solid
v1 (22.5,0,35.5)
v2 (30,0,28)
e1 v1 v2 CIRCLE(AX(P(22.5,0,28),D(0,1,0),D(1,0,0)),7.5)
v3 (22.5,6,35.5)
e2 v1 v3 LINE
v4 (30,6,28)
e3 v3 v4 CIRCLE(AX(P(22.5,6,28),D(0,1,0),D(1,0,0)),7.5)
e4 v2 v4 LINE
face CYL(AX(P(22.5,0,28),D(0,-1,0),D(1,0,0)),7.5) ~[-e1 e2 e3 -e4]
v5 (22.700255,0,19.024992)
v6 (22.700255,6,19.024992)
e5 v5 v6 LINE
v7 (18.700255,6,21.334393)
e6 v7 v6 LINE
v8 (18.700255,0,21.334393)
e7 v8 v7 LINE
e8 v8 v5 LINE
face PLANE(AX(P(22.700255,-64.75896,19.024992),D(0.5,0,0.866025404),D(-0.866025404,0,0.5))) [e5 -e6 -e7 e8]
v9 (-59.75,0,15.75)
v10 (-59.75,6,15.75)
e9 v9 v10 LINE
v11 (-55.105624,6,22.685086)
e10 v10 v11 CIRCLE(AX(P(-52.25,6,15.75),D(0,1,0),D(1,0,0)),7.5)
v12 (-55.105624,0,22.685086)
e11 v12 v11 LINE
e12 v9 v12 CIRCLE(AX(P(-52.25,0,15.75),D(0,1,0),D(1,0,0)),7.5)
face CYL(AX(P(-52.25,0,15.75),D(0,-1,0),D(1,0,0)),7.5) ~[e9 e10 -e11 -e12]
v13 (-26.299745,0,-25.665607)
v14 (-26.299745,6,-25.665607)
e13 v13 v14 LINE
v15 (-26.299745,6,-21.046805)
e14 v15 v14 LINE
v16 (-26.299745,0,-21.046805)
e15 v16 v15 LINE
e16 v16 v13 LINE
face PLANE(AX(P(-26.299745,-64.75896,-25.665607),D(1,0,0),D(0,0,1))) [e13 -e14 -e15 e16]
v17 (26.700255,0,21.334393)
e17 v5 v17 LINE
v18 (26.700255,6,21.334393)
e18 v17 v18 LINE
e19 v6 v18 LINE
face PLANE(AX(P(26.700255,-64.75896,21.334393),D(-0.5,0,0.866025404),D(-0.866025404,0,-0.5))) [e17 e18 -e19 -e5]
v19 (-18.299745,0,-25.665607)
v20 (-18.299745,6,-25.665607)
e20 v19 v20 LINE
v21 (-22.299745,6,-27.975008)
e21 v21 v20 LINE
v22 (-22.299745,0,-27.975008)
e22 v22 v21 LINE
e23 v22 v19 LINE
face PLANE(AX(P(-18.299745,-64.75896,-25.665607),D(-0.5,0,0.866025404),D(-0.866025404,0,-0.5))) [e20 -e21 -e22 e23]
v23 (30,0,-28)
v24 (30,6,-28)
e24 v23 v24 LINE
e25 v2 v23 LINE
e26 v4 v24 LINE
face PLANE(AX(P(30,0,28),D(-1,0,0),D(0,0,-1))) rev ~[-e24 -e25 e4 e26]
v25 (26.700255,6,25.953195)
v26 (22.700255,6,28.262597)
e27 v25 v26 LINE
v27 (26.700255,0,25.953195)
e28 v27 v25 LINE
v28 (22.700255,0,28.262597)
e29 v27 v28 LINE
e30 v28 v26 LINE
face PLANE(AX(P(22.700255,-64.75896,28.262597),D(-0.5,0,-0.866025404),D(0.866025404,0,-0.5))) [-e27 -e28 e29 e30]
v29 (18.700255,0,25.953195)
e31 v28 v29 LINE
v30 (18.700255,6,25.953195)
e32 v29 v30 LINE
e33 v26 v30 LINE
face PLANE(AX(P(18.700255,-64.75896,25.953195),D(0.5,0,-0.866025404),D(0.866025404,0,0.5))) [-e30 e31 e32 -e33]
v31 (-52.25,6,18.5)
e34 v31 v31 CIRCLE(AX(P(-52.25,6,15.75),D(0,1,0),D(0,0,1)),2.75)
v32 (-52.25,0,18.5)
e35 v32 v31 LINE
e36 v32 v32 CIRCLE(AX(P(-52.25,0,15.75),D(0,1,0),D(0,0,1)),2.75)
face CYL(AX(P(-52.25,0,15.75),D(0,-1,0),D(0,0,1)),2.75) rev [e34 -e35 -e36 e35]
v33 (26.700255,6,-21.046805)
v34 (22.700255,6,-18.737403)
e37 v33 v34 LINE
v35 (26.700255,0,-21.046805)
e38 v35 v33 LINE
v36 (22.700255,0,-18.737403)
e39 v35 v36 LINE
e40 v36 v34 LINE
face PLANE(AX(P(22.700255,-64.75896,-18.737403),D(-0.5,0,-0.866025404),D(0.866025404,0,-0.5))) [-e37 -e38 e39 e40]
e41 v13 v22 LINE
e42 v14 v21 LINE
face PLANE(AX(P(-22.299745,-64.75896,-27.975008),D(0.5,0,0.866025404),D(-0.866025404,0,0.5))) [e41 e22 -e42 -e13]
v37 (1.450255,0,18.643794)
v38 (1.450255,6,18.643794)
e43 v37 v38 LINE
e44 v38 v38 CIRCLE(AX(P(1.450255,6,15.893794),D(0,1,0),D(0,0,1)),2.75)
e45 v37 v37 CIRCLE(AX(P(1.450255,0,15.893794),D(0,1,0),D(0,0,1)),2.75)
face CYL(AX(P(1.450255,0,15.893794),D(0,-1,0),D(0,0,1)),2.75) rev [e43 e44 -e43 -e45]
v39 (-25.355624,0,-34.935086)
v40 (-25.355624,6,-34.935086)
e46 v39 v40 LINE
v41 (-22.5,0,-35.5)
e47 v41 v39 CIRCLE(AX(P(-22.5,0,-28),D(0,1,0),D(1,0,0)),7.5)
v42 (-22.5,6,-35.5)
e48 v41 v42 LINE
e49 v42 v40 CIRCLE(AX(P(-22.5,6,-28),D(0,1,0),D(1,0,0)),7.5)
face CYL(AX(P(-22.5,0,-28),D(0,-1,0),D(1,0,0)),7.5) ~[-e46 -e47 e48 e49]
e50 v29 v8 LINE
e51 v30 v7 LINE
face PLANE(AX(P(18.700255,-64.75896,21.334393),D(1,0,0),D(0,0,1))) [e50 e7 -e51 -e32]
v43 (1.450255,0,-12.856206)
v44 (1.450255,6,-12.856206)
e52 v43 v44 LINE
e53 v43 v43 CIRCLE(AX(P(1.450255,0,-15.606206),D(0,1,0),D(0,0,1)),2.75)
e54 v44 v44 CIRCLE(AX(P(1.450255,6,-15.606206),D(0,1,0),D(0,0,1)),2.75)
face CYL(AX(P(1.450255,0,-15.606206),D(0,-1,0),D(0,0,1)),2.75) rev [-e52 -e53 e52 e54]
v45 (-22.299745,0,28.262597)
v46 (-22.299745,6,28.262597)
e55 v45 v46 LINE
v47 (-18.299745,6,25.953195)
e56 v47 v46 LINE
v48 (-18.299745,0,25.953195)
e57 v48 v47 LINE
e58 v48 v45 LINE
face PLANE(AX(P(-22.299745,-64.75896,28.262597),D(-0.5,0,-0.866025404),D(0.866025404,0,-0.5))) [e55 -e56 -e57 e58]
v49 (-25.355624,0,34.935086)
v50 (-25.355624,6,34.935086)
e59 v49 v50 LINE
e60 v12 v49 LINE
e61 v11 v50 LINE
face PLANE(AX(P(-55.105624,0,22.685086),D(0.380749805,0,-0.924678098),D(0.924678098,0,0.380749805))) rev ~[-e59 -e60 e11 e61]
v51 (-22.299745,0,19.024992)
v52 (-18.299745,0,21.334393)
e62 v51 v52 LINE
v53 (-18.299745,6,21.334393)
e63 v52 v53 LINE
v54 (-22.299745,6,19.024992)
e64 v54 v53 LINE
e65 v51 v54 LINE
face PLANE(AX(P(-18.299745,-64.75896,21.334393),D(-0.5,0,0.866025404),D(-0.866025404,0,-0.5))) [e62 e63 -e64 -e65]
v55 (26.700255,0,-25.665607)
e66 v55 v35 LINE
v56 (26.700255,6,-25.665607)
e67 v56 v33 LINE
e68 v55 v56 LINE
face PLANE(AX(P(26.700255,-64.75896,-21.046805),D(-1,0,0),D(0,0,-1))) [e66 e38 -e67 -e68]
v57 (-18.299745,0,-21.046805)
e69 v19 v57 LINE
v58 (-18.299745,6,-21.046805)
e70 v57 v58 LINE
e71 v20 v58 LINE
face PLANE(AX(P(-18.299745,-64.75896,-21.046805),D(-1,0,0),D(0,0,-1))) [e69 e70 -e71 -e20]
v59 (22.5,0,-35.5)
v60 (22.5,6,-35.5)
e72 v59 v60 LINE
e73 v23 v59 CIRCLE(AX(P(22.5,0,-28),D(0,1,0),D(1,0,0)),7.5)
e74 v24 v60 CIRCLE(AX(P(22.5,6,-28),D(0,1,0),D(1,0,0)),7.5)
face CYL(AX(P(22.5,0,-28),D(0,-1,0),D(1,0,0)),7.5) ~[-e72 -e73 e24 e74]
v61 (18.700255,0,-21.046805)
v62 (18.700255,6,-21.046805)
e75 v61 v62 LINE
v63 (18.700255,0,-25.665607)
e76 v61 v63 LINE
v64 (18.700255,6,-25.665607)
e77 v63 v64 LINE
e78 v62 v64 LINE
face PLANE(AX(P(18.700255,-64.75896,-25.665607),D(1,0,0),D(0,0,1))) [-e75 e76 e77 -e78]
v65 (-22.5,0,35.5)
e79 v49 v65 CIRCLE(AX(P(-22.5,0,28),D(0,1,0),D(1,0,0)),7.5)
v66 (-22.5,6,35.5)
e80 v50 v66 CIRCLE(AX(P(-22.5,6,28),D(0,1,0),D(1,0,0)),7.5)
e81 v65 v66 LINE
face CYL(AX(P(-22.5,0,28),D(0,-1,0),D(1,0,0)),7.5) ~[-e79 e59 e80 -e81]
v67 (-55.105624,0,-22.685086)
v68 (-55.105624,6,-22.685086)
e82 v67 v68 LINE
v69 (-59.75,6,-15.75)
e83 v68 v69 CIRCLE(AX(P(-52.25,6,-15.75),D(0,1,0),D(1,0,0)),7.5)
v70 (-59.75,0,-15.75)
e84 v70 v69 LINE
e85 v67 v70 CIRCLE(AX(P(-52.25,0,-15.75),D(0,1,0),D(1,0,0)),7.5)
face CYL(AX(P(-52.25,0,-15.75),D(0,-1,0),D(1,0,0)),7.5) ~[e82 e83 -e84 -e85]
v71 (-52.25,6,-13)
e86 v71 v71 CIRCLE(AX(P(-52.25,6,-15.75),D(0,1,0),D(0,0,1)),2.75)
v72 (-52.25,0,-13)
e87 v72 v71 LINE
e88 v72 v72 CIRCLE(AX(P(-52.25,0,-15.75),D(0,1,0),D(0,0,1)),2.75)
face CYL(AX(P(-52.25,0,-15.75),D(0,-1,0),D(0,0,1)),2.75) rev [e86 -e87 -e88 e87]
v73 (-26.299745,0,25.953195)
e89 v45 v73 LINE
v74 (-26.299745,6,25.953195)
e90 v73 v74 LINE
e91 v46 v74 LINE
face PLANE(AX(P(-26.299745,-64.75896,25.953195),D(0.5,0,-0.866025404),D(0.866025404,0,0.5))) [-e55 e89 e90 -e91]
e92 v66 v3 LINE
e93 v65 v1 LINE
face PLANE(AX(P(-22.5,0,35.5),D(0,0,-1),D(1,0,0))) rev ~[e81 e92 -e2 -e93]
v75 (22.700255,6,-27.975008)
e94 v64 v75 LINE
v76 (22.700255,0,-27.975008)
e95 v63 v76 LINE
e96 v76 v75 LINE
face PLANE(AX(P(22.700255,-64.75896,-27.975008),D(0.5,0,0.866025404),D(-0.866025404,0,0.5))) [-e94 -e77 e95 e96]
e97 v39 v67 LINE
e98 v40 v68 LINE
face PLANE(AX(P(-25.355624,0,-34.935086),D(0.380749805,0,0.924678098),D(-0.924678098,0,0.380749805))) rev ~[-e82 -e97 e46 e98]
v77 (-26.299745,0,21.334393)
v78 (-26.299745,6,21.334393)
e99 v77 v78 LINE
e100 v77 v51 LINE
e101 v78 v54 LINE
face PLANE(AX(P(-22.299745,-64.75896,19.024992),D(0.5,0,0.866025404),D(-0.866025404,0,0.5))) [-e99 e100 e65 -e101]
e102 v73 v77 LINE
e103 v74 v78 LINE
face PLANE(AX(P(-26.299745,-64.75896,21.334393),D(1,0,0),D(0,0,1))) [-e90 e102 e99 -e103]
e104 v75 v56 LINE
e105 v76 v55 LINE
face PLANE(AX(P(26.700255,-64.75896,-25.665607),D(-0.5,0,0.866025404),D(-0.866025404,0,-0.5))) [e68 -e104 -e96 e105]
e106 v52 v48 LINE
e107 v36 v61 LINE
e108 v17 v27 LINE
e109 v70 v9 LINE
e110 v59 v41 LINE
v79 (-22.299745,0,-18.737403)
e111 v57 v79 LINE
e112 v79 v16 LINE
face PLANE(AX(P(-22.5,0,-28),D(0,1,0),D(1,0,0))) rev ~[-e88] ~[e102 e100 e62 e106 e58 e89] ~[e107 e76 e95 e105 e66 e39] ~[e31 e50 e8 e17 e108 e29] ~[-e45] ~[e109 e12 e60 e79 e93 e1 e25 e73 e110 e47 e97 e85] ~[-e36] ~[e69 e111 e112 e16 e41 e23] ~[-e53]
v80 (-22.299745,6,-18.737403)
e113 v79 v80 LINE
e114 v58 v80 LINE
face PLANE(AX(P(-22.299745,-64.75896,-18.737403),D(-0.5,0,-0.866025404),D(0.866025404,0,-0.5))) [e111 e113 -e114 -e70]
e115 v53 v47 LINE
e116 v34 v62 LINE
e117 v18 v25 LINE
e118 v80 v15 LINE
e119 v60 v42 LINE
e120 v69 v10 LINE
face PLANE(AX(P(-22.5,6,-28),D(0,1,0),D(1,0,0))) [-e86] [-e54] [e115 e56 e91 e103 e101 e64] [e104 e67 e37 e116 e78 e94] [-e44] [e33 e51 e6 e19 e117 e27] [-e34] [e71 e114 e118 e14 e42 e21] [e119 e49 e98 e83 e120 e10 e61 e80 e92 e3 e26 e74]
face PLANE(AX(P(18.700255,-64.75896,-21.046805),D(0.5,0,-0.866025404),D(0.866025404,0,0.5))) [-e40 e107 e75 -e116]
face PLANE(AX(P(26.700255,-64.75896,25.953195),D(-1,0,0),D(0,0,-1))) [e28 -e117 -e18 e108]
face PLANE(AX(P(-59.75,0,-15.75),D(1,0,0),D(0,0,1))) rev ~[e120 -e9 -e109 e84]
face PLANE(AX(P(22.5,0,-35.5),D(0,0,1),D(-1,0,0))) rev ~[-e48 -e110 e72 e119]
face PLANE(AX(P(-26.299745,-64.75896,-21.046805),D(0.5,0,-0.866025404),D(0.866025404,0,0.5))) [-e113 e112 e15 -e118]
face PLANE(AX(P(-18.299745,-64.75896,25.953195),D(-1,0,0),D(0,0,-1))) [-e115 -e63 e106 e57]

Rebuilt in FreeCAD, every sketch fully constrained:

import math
import FreeCAD as App
import Part
import Sketcher
from FreeCAD import Vector
Q = App.Units.Quantity

doc = App.newDocument("Part")
body = doc.addObject("PartDesign::Body", "Body")

# Sketch on XZ plane
sketch1 = doc.addObject("Sketcher::SketchObject", "Sketch")
body.addObject(sketch1)
sketch1.AttachmentSupport = (doc.XZ_Plane, [""])
sketch1.MapMode = "FlatFace"
sketch1.addGeometry([
    Part.ArcOfCircle(Part.Circle(Vector(-52.2, -15.8, 0), Vector(0, 0, 1), 7.5), math.radians(180), math.radians(248)),  # 0
    Part.LineSegment(Vector(-59.8, -15.8, 0), Vector(-59.8, 15.8, 0)),  # 1
    Part.ArcOfCircle(Part.Circle(Vector(-52.2, 15.8, 0), Vector(0, 0, 1), 7.5), math.radians(112), math.radians(180)),  # 2
    Part.LineSegment(Vector(-55.1, 22.7, 0), Vector(-25.4, 34.9, 0)),  # 3
    Part.ArcOfCircle(Part.Circle(Vector(-22.5, 28, 0), Vector(0, 0, 1), 7.5), math.radians(90), math.radians(112)),  # 4
    Part.LineSegment(Vector(-22.5, 35.5, 0), Vector(22.5, 35.5, 0)),  # 5
    Part.ArcOfCircle(Part.Circle(Vector(22.5, 28, 0), Vector(0, 0, 1), 7.5), math.radians(0), math.radians(90)),  # 6
    Part.LineSegment(Vector(30, 28, 0), Vector(30, -28, 0)),  # 7
    Part.ArcOfCircle(Part.Circle(Vector(22.5, -28, 0), Vector(0, 0, 1), 7.5), math.radians(-90), math.radians(0)),  # 8
    Part.LineSegment(Vector(22.5, -35.5, 0), Vector(-22.5, -35.5, 0)),  # 9
    Part.ArcOfCircle(Part.Circle(Vector(-22.5, -28, 0), Vector(0, 0, 1), 7.5), math.radians(-112), math.radians(-90)),  # 10
    Part.LineSegment(Vector(-25.4, -34.9, 0), Vector(-55.1, -22.7, 0)),  # 11
    Part.Circle(Vector(-52.2, -15.8, 0), Vector(0, 0, 1), 2.8),  # 12
    Part.Circle(Vector(1.5, 15.9, 0), Vector(0, 0, 1), 2.8),  # 13
    Part.Circle(Vector(1.5, -15.6, 0), Vector(0, 0, 1), 2.8),  # 14
    Part.Circle(Vector(-52.2, 15.8, 0), Vector(0, 0, 1), 2.8),  # 15
    Part.Circle(Vector(-22.3, -23.4, 0), Vector(0, 0, 1), 2.5),  # 16
    Part.Circle(Vector(-22.3, 23.6, 0), Vector(0, 0, 1), 2.5),  # 17
    Part.Circle(Vector(22.7, -23.4, 0), Vector(0, 0, 1), 2.5),  # 18
    Part.Circle(Vector(22.7, 23.6, 0), Vector(0, 0, 1), 2.5),  # 19
], False)
sketch1.addConstraint([
    Sketcher.Constraint("Tangent", 0, 1, 1, 1),
    Sketcher.Constraint("Tangent", 1, 2, 2, 2),
    Sketcher.Constraint("Tangent", 2, 1, 3, 1),
    Sketcher.Constraint("Tangent", 3, 2, 4, 2),
    Sketcher.Constraint("Tangent", 4, 1, 5, 1),
    Sketcher.Constraint("Tangent", 5, 2, 6, 2),
    Sketcher.Constraint("Tangent", 6, 1, 7, 1),
    Sketcher.Constraint("Tangent", 7, 2, 8, 2),
    Sketcher.Constraint("Tangent", 8, 1, 9, 1),
    Sketcher.Constraint("Tangent", 9, 2, 10, 2),
    Sketcher.Constraint("Tangent", 10, 1, 11, 1),
    Sketcher.Constraint("Tangent", 11, 2, 0, 2),
    Sketcher.Constraint("Vertical", 1),
    Sketcher.Constraint("Horizontal", 5),
    Sketcher.Constraint("Vertical", 7),
    Sketcher.Constraint("Horizontal", 9),
    Sketcher.Constraint("Coincident", 12, 3, 0, 3),
    Sketcher.Constraint("Coincident", 15, 3, 2, 3),
    Sketcher.Constraint("Equal", 0, 2),
    Sketcher.Constraint("Equal", 2, 4),
    Sketcher.Constraint("Equal", 4, 6),
    Sketcher.Constraint("Equal", 6, 8),
    Sketcher.Constraint("Equal", 8, 10),
    Sketcher.Constraint("Equal", 12, 13),
    Sketcher.Constraint("Equal", 13, 14),
    Sketcher.Constraint("Equal", 14, 15),
    Sketcher.Constraint("Equal", 16, 17),
    Sketcher.Constraint("Equal", 17, 18),
    Sketcher.Constraint("Equal", 18, 19),
    Sketcher.Constraint("Symmetric", 4, 3, 8, 3, -1, 1),
    Sketcher.Constraint("Symmetric", 3, 2, 10, 1, -1),
    Sketcher.Constraint("Horizontal", 16, 3, 18, 3),
    Sketcher.Constraint("Horizontal", 17, 3, 19, 3),
    Sketcher.Constraint("Vertical", 13, 3, 14, 3),
    Sketcher.Constraint("Vertical", 16, 3, 17, 3),
    Sketcher.Constraint("Vertical", 18, 3, 19, 3),
    Sketcher.Constraint("Diameter", 16, 5.0),
    Sketcher.Constraint("Diameter", 12, 5.5),
    Sketcher.Constraint("Radius", 0, 7.5),
    Sketcher.Constraint("DistanceX", 5, 1, 5, 2, 45.0),
    Sketcher.Constraint("DistanceY", 7, 2, 7, 1, 56.0),
    Sketcher.Constraint("DistanceY", 1, 1, 1, 2, 31.5),
    Sketcher.Constraint("DistanceX", 16, 3, 18, 3, 45.0),
    Sketcher.Constraint("DistanceY", 14, 3, 13, 3, 31.5),
    Sketcher.Constraint("DistanceX", 0, 3, -1, 1, 52.25),
    Sketcher.Constraint("DistanceX", 16, 3, 14, 3, 23.75),
    Sketcher.Constraint("DistanceY", 16, 3, 14, 3, 7.75),
    Sketcher.Constraint("DistanceY", 13, 3, 17, 3, 7.75),
    Sketcher.Constraint("DistanceX", 2, 1, 17, 3, 32.805879),
    Sketcher.Constraint("DistanceY", 2, 1, 17, 3, 0.958709),
])
pad1 = doc.addObject("PartDesign::Pad", "Pad")
body.addObject(pad1)
pad1.Profile = sketch1
pad1.Length = 6
pad1.Reversed = True

# Sketch on XZ plane
sketch2 = doc.addObject("Sketcher::SketchObject", "Sketch001")
body.addObject(sketch2)
sketch2.AttachmentSupport = (doc.XZ_Plane, [""])
sketch2.MapMode = "FlatFace"
sketch2.AttachmentOffset = App.Placement(Vector(0, 0, -6), App.Rotation())
sketch2.addGeometry([
    Part.LineSegment(Vector(-22.3, -18.7, 0), Vector(-18.3, -21, 0)),  # 0
    Part.LineSegment(Vector(-18.3, -21, 0), Vector(-18.3, -25.7, 0)),  # 1
    Part.LineSegment(Vector(-18.3, -25.7, 0), Vector(-22.3, -28, 0)),  # 2
    Part.LineSegment(Vector(-22.3, -28, 0), Vector(-26.3, -25.7, 0)),  # 3
    Part.LineSegment(Vector(-26.3, -25.7, 0), Vector(-26.3, -21, 0)),  # 4
    Part.LineSegment(Vector(-26.3, -21, 0), Vector(-22.3, -18.7, 0)),  # 5
    Part.LineSegment(Vector(-22.3, 19, 0), Vector(-26.3, 21.3, 0)),  # 6
    Part.LineSegment(Vector(-26.3, 21.3, 0), Vector(-26.3, 26, 0)),  # 7
    Part.LineSegment(Vector(-26.3, 26, 0), Vector(-22.3, 28.3, 0)),  # 8
    Part.LineSegment(Vector(-22.3, 28.3, 0), Vector(-18.3, 26, 0)),  # 9
    Part.LineSegment(Vector(-18.3, 26, 0), Vector(-18.3, 21.3, 0)),  # 10
    Part.LineSegment(Vector(-18.3, 21.3, 0), Vector(-22.3, 19, 0)),  # 11
    Part.LineSegment(Vector(18.7, 26, 0), Vector(22.7, 28.3, 0)),  # 12
    Part.LineSegment(Vector(22.7, 28.3, 0), Vector(26.7, 26, 0)),  # 13
    Part.LineSegment(Vector(26.7, 26, 0), Vector(26.7, 21.3, 0)),  # 14
    Part.LineSegment(Vector(26.7, 21.3, 0), Vector(22.7, 19, 0)),  # 15
    Part.LineSegment(Vector(22.7, 19, 0), Vector(18.7, 21.3, 0)),  # 16
    Part.LineSegment(Vector(18.7, 21.3, 0), Vector(18.7, 26, 0)),  # 17
    Part.LineSegment(Vector(22.7, -18.7, 0), Vector(26.7, -21, 0)),  # 18
    Part.LineSegment(Vector(26.7, -21, 0), Vector(26.7, -25.7, 0)),  # 19
    Part.LineSegment(Vector(26.7, -25.7, 0), Vector(22.7, -28, 0)),  # 20
    Part.LineSegment(Vector(22.7, -28, 0), Vector(18.7, -25.7, 0)),  # 21
    Part.LineSegment(Vector(18.7, -25.7, 0), Vector(18.7, -21, 0)),  # 22
    Part.LineSegment(Vector(18.7, -21, 0), Vector(22.7, -18.7, 0)),  # 23
], False)
sketch2.addConstraint([
    Sketcher.Constraint("Coincident", 0, 2, 1, 1),
    Sketcher.Constraint("Coincident", 1, 2, 2, 1),
    Sketcher.Constraint("Coincident", 2, 2, 3, 1),
    Sketcher.Constraint("Coincident", 3, 2, 4, 1),
    Sketcher.Constraint("Coincident", 4, 2, 5, 1),
    Sketcher.Constraint("Coincident", 5, 2, 0, 1),
    Sketcher.Constraint("Coincident", 6, 2, 7, 1),
    Sketcher.Constraint("Coincident", 7, 2, 8, 1),
    Sketcher.Constraint("Coincident", 8, 2, 9, 1),
    Sketcher.Constraint("Coincident", 9, 2, 10, 1),
    Sketcher.Constraint("Coincident", 10, 2, 11, 1),
    Sketcher.Constraint("Coincident", 11, 2, 6, 1),
    Sketcher.Constraint("Coincident", 12, 2, 13, 1),
    Sketcher.Constraint("Coincident", 13, 2, 14, 1),
    Sketcher.Constraint("Coincident", 14, 2, 15, 1),
    Sketcher.Constraint("Coincident", 15, 2, 16, 1),
    Sketcher.Constraint("Coincident", 16, 2, 17, 1),
    Sketcher.Constraint("Coincident", 17, 2, 12, 1),
    Sketcher.Constraint("Coincident", 18, 2, 19, 1),
    Sketcher.Constraint("Coincident", 19, 2, 20, 1),
    Sketcher.Constraint("Coincident", 20, 2, 21, 1),
    Sketcher.Constraint("Coincident", 21, 2, 22, 1),
    Sketcher.Constraint("Coincident", 22, 2, 23, 1),
    Sketcher.Constraint("Coincident", 23, 2, 18, 1),
    Sketcher.Constraint("Vertical", 1),
    Sketcher.Constraint("Vertical", 4),
    Sketcher.Constraint("Vertical", 7),
    Sketcher.Constraint("Vertical", 10),
    Sketcher.Constraint("Vertical", 14),
    Sketcher.Constraint("Vertical", 17),
    Sketcher.Constraint("Vertical", 19),
    Sketcher.Constraint("Vertical", 22),
    Sketcher.Constraint("Parallel", 0, 3),
    Sketcher.Constraint("Parallel", 2, 5),
    Sketcher.Constraint("Parallel", 3, 6),
    Sketcher.Constraint("Parallel", 5, 8),
    Sketcher.Constraint("Parallel", 6, 9),
    Sketcher.Constraint("Parallel", 8, 11),
    Sketcher.Constraint("Parallel", 11, 12),
    Sketcher.Constraint("Parallel", 9, 13),
    Sketcher.Constraint("Parallel", 12, 15),
    Sketcher.Constraint("Parallel", 13, 16),
    Sketcher.Constraint("Parallel", 16, 18),
    Sketcher.Constraint("Parallel", 15, 20),
    Sketcher.Constraint("Parallel", 18, 21),
    Sketcher.Constraint("Parallel", 20, 23),
    Sketcher.Constraint("Horizontal", 1, 2, 3, 2),
    Sketcher.Constraint("Horizontal", 0, 2, 4, 2),
    Sketcher.Constraint("Horizontal", 7, 2, 9, 2),
    Sketcher.Constraint("Horizontal", 6, 2, 10, 2),
    Sketcher.Constraint("Horizontal", 8, 2, 12, 2),
    Sketcher.Constraint("Horizontal", 9, 2, 13, 2),
    Sketcher.Constraint("Horizontal", 10, 2, 14, 2),
    Sketcher.Constraint("Horizontal", 11, 2, 15, 2),
    Sketcher.Constraint("Horizontal", 14, 2, 16, 2),
    Sketcher.Constraint("Horizontal", 4, 2, 18, 2),
    Sketcher.Constraint("Horizontal", 3, 2, 19, 2),
    Sketcher.Constraint("Horizontal", 2, 2, 20, 2),
    Sketcher.Constraint("Horizontal", 19, 2, 21, 2),
    Sketcher.Constraint("Horizontal", 18, 2, 22, 2),
    Sketcher.Constraint("Vertical", 2, 2, 5, 2),
    Sketcher.Constraint("Vertical", 4, 2, 6, 2),
    Sketcher.Constraint("Vertical", 5, 2, 8, 2),
    Sketcher.Constraint("Vertical", 14, 2, 18, 2),
    Sketcher.Constraint("Equal", 4, 7),
    Sketcher.Constraint("Angle", 0, Q("-30 deg")),
    Sketcher.Constraint("DistanceX", 2, 2, 1, 2, 4.0),
    Sketcher.Constraint("DistanceY", 3, 2, 6, 2, 47.0),
    Sketcher.Constraint("DistanceX", 9, 2, 12, 2, 41.0),
    Sketcher.Constraint("DistanceY", 1, 2, 1, 1, 4.618802),
    Sketcher.Constraint("DistanceX", 0, 2, -1, 1, 18.299745),
    Sketcher.Constraint("DistanceY", 0, 2, -1, 1, 21.046805),
])
pocket1 = doc.addObject("PartDesign::Pocket", "Pocket")
body.addObject(pocket1)
pocket1.Profile = sketch2
pocket1.Type = "ThroughAll"
pocket1.Midplane = True

doc.recompute()
